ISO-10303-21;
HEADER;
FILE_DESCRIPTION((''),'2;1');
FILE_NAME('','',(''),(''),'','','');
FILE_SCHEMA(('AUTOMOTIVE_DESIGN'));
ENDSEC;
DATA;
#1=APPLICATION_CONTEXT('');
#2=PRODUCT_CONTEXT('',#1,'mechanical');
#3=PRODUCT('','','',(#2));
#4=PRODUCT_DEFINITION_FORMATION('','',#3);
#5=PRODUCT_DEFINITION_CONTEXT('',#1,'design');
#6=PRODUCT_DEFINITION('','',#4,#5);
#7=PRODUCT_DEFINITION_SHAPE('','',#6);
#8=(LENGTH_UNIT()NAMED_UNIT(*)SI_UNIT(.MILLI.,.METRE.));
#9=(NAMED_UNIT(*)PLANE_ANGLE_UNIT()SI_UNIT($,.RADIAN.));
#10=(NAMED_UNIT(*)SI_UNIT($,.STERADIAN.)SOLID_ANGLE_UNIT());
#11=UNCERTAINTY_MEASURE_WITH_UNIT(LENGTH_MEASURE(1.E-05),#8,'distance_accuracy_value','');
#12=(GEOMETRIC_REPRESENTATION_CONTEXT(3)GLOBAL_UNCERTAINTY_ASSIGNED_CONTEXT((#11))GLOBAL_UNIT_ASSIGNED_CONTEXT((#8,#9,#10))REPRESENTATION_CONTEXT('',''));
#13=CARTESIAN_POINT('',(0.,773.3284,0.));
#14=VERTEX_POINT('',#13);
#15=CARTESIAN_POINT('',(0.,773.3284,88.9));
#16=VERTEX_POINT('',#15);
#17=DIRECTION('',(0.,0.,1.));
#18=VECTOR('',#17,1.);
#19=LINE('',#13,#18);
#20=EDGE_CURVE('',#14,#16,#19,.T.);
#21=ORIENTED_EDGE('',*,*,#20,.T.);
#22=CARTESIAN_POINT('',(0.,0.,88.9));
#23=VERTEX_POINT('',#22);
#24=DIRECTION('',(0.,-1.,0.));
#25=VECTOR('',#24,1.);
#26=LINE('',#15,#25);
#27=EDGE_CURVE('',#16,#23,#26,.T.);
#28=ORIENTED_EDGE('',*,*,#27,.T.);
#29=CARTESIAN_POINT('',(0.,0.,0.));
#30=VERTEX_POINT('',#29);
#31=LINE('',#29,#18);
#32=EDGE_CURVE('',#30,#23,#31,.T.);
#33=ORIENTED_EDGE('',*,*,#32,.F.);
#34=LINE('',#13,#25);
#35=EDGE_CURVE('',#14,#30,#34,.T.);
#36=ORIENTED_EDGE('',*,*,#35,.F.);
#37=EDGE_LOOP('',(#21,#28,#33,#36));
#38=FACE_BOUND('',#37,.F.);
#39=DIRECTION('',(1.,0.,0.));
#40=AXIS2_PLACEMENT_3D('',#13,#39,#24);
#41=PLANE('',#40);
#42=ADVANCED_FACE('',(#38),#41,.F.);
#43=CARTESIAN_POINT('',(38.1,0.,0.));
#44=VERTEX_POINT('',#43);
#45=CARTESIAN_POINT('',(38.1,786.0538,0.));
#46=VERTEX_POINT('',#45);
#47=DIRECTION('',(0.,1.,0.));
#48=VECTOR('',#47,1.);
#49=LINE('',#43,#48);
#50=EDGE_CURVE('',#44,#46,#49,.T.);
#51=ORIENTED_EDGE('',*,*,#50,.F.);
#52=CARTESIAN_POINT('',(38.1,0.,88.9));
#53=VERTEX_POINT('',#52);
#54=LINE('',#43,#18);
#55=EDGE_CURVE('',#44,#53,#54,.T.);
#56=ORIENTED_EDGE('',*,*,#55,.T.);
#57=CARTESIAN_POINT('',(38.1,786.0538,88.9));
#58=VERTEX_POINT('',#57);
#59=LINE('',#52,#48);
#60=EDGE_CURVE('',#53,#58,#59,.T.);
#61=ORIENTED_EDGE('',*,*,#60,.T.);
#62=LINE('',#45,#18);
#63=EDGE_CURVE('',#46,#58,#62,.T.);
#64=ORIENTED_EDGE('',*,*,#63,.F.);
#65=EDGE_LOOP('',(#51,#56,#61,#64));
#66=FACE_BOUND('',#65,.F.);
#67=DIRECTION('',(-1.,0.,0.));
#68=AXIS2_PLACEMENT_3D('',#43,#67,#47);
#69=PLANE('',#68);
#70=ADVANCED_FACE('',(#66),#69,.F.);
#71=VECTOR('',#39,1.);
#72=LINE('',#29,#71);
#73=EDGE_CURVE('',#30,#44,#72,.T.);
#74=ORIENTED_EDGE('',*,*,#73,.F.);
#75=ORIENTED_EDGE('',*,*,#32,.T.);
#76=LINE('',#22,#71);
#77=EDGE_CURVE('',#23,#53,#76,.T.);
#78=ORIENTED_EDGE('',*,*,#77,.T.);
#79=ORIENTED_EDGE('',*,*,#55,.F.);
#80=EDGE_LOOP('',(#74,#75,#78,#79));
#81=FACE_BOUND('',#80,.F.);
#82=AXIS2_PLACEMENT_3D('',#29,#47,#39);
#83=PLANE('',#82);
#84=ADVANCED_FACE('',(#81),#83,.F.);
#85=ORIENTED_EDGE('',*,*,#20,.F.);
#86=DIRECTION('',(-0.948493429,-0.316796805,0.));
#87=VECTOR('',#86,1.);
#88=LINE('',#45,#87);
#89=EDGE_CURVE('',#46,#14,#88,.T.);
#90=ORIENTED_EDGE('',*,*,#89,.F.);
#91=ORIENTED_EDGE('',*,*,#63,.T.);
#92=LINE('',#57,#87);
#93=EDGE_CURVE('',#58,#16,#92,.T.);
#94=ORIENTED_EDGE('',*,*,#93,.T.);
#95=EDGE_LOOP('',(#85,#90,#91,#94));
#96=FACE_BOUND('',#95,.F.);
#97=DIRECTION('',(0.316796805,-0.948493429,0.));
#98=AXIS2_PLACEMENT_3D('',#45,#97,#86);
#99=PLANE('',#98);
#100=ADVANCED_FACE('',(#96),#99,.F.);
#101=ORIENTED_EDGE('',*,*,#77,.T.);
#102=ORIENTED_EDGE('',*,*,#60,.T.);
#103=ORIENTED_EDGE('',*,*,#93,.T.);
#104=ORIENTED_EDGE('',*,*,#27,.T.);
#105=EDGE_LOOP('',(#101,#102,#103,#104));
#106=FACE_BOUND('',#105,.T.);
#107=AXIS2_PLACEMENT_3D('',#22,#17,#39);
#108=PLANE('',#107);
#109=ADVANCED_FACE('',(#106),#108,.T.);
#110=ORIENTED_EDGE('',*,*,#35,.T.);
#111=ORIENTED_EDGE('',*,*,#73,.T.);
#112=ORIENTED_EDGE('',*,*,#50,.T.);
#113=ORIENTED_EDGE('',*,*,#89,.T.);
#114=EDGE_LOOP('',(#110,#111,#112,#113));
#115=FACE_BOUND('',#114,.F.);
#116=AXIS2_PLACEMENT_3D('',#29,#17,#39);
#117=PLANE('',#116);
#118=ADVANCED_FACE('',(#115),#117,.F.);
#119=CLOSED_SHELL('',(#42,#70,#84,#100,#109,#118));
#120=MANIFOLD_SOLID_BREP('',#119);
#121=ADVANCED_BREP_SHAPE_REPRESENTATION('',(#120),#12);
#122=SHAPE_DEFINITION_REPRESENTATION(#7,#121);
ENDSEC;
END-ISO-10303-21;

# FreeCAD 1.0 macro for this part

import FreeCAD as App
import Part
import Sketcher
Q = App.Units.Quantity


def add_polygon(sketch, points):
    """Adds a closed chain of lines whose ends are joined by coincident constraints."""
    first, n = sketch.GeometryCount, len(points)
    for a, b in zip(points, points[1:] + points[:1]):
        sketch.addGeometry(Part.LineSegment(App.Vector(*a, 0), App.Vector(*b, 0)), False)
    for i in range(n):
        sketch.addConstraint(Sketcher.Constraint("Coincident", first + i, 2, first + (i + 1) % n, 1))

doc = App.newDocument("Part")
body = doc.addObject("PartDesign::Body", "Body")

# Sketch on XY plane
sketch1 = body.newObject("Sketcher::SketchObject", "Sketch")
sketch1.AttachmentSupport = (doc.getObject("XY_Plane"), [""])
sketch1.MapMode = "FlatFace"
add_polygon(sketch1, [(0, 773), (0, 0), (38, 0), (38, 786)])  # lines 0-3
sketch1.addConstraint([
    Sketcher.Constraint("Vertical", 0),
    Sketcher.Constraint("Horizontal", 1),
    Sketcher.Constraint("Vertical", 2),
    Sketcher.Constraint("Coincident", 0, 2, -1, 1),
    Sketcher.Constraint("DistanceX", 1, 1, 1, 2, Q("1.5 in")),
    Sketcher.Constraint("DistanceY", 0, 2, 0, 1, Q("30.446 in")),
    Sketcher.Constraint("DistanceY", 2, 1, 2, 2, Q("30.947 in")),
])
pad1 = body.newObject("PartDesign::Pad", "Pad")
pad1.Profile = sketch1
pad1.Length = Q("3.5 in")

doc.recompute()
